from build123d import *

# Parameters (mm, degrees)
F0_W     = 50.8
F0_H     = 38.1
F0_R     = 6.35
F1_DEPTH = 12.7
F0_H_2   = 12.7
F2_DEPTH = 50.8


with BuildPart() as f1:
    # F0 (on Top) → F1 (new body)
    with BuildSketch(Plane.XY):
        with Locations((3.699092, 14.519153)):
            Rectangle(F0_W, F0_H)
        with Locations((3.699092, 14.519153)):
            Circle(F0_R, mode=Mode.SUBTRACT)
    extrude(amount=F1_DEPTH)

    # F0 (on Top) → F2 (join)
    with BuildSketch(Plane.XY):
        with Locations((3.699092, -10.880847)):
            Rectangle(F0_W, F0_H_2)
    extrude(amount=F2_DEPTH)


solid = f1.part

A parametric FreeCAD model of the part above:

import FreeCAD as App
import Part
import Sketcher

V = App.Vector
Q = App.Units.Quantity

doc = App.newDocument("Part")
body = doc.addObject("PartDesign::Body", "Body")

# Sketch on XY plane
sketch1 = body.newObject("Sketcher::SketchObject", "Sketch")
sketch1.AttachmentSupport = (doc.getObject("XY_Plane"), [""])
sketch1.MapMode = "FlatFace"
sketch1.addGeometry([
    Part.LineSegment(V(-22, 34, 0), V(-22, -5, 0)),  # 0
    Part.LineSegment(V(-22, -5, 0), V(29, -5, 0)),  # 1
    Part.LineSegment(V(29, -5, 0), V(29, 34, 0)),  # 2
    Part.LineSegment(V(29, 34, 0), V(-22, 34, 0)),  # 3
    Part.Circle(V(4, 15, 0), V(0, 0, 1), 6),  # 4
], False)
sketch1.addConstraint([
    Sketcher.Constraint("Coincident", 0, 2, 1, 1),
    Sketcher.Constraint("Coincident", 1, 2, 2, 1),
    Sketcher.Constraint("Coincident", 2, 2, 3, 1),
    Sketcher.Constraint("Coincident", 3, 2, 0, 1),
    Sketcher.Constraint("Vertical", 0),
    Sketcher.Constraint("Horizontal", 1),
    Sketcher.Constraint("Vertical", 2),
    Sketcher.Constraint("Horizontal", 3),
    Sketcher.Constraint("Diameter", 4, Q("0.5 in")),
    Sketcher.Constraint("DistanceX", 1, 1, 1, 2, Q("2 in")),
    Sketcher.Constraint("DistanceY", 0, 2, 0, 1, Q("1.5 in")),
    Sketcher.Constraint("DistanceX", 0, 2, 4, 3, Q("1 in")),
    Sketcher.Constraint("DistanceY", 0, 2, 4, 3, Q("0.75 in")),
    Sketcher.Constraint("DistanceX", -1, 1, 4, 3, 3.699092),
    Sketcher.Constraint("DistanceY", -1, 1, 4, 3, 14.519153),
])
pad1 = body.newObject("PartDesign::Pad", "Pad")
pad1.Profile = sketch1
pad1.Length = Q("0.5 in")

# Sketch on XY plane
sketch2 = body.newObject("Sketcher::SketchObject", "Sketch001")
sketch2.AttachmentSupport = (doc.getObject("XY_Plane"), [""])
sketch2.MapMode = "FlatFace"
sketch2.addGeometry([
    Part.LineSegment(V(-22, -5, 0), V(-22, -17, 0)),
    Part.LineSegment(V(-22, -17, 0), V(29, -17, 0)),
    Part.LineSegment(V(29, -17, 0), V(29, -5, 0)),
    Part.LineSegment(V(29, -5, 0), V(-22, -5, 0)),
], False)
sketch2.addConstraint([
    Sketcher.Constraint("Coincident", 0, 2, 1, 1),
    Sketcher.Constraint("Coincident", 1, 2, 2, 1),
    Sketcher.Constraint("Coincident", 2, 2, 3, 1),
    Sketcher.Constraint("Coincident", 3, 2, 0, 1),
    Sketcher.Constraint("Vertical", 0),
    Sketcher.Constraint("Horizontal", 1),
    Sketcher.Constraint("Vertical", 2),
    Sketcher.Constraint("Horizontal", 3),
    Sketcher.Constraint("DistanceX", 1, 1, 1, 2, Q("2 in")),
    Sketcher.Constraint("DistanceY", 0, 2, 0, 1, Q("0.5 in")),
    Sketcher.Constraint("DistanceX", -1, 1, 1, 2, 29.099092),
    Sketcher.Constraint("DistanceY", 0, 2, -1, 1, 17.230847),
])
pad2 = body.newObject("PartDesign::Pad", "Pad001")
pad2.Profile = sketch2
pad2.Length = Q("2 in")

doc.recompute()
